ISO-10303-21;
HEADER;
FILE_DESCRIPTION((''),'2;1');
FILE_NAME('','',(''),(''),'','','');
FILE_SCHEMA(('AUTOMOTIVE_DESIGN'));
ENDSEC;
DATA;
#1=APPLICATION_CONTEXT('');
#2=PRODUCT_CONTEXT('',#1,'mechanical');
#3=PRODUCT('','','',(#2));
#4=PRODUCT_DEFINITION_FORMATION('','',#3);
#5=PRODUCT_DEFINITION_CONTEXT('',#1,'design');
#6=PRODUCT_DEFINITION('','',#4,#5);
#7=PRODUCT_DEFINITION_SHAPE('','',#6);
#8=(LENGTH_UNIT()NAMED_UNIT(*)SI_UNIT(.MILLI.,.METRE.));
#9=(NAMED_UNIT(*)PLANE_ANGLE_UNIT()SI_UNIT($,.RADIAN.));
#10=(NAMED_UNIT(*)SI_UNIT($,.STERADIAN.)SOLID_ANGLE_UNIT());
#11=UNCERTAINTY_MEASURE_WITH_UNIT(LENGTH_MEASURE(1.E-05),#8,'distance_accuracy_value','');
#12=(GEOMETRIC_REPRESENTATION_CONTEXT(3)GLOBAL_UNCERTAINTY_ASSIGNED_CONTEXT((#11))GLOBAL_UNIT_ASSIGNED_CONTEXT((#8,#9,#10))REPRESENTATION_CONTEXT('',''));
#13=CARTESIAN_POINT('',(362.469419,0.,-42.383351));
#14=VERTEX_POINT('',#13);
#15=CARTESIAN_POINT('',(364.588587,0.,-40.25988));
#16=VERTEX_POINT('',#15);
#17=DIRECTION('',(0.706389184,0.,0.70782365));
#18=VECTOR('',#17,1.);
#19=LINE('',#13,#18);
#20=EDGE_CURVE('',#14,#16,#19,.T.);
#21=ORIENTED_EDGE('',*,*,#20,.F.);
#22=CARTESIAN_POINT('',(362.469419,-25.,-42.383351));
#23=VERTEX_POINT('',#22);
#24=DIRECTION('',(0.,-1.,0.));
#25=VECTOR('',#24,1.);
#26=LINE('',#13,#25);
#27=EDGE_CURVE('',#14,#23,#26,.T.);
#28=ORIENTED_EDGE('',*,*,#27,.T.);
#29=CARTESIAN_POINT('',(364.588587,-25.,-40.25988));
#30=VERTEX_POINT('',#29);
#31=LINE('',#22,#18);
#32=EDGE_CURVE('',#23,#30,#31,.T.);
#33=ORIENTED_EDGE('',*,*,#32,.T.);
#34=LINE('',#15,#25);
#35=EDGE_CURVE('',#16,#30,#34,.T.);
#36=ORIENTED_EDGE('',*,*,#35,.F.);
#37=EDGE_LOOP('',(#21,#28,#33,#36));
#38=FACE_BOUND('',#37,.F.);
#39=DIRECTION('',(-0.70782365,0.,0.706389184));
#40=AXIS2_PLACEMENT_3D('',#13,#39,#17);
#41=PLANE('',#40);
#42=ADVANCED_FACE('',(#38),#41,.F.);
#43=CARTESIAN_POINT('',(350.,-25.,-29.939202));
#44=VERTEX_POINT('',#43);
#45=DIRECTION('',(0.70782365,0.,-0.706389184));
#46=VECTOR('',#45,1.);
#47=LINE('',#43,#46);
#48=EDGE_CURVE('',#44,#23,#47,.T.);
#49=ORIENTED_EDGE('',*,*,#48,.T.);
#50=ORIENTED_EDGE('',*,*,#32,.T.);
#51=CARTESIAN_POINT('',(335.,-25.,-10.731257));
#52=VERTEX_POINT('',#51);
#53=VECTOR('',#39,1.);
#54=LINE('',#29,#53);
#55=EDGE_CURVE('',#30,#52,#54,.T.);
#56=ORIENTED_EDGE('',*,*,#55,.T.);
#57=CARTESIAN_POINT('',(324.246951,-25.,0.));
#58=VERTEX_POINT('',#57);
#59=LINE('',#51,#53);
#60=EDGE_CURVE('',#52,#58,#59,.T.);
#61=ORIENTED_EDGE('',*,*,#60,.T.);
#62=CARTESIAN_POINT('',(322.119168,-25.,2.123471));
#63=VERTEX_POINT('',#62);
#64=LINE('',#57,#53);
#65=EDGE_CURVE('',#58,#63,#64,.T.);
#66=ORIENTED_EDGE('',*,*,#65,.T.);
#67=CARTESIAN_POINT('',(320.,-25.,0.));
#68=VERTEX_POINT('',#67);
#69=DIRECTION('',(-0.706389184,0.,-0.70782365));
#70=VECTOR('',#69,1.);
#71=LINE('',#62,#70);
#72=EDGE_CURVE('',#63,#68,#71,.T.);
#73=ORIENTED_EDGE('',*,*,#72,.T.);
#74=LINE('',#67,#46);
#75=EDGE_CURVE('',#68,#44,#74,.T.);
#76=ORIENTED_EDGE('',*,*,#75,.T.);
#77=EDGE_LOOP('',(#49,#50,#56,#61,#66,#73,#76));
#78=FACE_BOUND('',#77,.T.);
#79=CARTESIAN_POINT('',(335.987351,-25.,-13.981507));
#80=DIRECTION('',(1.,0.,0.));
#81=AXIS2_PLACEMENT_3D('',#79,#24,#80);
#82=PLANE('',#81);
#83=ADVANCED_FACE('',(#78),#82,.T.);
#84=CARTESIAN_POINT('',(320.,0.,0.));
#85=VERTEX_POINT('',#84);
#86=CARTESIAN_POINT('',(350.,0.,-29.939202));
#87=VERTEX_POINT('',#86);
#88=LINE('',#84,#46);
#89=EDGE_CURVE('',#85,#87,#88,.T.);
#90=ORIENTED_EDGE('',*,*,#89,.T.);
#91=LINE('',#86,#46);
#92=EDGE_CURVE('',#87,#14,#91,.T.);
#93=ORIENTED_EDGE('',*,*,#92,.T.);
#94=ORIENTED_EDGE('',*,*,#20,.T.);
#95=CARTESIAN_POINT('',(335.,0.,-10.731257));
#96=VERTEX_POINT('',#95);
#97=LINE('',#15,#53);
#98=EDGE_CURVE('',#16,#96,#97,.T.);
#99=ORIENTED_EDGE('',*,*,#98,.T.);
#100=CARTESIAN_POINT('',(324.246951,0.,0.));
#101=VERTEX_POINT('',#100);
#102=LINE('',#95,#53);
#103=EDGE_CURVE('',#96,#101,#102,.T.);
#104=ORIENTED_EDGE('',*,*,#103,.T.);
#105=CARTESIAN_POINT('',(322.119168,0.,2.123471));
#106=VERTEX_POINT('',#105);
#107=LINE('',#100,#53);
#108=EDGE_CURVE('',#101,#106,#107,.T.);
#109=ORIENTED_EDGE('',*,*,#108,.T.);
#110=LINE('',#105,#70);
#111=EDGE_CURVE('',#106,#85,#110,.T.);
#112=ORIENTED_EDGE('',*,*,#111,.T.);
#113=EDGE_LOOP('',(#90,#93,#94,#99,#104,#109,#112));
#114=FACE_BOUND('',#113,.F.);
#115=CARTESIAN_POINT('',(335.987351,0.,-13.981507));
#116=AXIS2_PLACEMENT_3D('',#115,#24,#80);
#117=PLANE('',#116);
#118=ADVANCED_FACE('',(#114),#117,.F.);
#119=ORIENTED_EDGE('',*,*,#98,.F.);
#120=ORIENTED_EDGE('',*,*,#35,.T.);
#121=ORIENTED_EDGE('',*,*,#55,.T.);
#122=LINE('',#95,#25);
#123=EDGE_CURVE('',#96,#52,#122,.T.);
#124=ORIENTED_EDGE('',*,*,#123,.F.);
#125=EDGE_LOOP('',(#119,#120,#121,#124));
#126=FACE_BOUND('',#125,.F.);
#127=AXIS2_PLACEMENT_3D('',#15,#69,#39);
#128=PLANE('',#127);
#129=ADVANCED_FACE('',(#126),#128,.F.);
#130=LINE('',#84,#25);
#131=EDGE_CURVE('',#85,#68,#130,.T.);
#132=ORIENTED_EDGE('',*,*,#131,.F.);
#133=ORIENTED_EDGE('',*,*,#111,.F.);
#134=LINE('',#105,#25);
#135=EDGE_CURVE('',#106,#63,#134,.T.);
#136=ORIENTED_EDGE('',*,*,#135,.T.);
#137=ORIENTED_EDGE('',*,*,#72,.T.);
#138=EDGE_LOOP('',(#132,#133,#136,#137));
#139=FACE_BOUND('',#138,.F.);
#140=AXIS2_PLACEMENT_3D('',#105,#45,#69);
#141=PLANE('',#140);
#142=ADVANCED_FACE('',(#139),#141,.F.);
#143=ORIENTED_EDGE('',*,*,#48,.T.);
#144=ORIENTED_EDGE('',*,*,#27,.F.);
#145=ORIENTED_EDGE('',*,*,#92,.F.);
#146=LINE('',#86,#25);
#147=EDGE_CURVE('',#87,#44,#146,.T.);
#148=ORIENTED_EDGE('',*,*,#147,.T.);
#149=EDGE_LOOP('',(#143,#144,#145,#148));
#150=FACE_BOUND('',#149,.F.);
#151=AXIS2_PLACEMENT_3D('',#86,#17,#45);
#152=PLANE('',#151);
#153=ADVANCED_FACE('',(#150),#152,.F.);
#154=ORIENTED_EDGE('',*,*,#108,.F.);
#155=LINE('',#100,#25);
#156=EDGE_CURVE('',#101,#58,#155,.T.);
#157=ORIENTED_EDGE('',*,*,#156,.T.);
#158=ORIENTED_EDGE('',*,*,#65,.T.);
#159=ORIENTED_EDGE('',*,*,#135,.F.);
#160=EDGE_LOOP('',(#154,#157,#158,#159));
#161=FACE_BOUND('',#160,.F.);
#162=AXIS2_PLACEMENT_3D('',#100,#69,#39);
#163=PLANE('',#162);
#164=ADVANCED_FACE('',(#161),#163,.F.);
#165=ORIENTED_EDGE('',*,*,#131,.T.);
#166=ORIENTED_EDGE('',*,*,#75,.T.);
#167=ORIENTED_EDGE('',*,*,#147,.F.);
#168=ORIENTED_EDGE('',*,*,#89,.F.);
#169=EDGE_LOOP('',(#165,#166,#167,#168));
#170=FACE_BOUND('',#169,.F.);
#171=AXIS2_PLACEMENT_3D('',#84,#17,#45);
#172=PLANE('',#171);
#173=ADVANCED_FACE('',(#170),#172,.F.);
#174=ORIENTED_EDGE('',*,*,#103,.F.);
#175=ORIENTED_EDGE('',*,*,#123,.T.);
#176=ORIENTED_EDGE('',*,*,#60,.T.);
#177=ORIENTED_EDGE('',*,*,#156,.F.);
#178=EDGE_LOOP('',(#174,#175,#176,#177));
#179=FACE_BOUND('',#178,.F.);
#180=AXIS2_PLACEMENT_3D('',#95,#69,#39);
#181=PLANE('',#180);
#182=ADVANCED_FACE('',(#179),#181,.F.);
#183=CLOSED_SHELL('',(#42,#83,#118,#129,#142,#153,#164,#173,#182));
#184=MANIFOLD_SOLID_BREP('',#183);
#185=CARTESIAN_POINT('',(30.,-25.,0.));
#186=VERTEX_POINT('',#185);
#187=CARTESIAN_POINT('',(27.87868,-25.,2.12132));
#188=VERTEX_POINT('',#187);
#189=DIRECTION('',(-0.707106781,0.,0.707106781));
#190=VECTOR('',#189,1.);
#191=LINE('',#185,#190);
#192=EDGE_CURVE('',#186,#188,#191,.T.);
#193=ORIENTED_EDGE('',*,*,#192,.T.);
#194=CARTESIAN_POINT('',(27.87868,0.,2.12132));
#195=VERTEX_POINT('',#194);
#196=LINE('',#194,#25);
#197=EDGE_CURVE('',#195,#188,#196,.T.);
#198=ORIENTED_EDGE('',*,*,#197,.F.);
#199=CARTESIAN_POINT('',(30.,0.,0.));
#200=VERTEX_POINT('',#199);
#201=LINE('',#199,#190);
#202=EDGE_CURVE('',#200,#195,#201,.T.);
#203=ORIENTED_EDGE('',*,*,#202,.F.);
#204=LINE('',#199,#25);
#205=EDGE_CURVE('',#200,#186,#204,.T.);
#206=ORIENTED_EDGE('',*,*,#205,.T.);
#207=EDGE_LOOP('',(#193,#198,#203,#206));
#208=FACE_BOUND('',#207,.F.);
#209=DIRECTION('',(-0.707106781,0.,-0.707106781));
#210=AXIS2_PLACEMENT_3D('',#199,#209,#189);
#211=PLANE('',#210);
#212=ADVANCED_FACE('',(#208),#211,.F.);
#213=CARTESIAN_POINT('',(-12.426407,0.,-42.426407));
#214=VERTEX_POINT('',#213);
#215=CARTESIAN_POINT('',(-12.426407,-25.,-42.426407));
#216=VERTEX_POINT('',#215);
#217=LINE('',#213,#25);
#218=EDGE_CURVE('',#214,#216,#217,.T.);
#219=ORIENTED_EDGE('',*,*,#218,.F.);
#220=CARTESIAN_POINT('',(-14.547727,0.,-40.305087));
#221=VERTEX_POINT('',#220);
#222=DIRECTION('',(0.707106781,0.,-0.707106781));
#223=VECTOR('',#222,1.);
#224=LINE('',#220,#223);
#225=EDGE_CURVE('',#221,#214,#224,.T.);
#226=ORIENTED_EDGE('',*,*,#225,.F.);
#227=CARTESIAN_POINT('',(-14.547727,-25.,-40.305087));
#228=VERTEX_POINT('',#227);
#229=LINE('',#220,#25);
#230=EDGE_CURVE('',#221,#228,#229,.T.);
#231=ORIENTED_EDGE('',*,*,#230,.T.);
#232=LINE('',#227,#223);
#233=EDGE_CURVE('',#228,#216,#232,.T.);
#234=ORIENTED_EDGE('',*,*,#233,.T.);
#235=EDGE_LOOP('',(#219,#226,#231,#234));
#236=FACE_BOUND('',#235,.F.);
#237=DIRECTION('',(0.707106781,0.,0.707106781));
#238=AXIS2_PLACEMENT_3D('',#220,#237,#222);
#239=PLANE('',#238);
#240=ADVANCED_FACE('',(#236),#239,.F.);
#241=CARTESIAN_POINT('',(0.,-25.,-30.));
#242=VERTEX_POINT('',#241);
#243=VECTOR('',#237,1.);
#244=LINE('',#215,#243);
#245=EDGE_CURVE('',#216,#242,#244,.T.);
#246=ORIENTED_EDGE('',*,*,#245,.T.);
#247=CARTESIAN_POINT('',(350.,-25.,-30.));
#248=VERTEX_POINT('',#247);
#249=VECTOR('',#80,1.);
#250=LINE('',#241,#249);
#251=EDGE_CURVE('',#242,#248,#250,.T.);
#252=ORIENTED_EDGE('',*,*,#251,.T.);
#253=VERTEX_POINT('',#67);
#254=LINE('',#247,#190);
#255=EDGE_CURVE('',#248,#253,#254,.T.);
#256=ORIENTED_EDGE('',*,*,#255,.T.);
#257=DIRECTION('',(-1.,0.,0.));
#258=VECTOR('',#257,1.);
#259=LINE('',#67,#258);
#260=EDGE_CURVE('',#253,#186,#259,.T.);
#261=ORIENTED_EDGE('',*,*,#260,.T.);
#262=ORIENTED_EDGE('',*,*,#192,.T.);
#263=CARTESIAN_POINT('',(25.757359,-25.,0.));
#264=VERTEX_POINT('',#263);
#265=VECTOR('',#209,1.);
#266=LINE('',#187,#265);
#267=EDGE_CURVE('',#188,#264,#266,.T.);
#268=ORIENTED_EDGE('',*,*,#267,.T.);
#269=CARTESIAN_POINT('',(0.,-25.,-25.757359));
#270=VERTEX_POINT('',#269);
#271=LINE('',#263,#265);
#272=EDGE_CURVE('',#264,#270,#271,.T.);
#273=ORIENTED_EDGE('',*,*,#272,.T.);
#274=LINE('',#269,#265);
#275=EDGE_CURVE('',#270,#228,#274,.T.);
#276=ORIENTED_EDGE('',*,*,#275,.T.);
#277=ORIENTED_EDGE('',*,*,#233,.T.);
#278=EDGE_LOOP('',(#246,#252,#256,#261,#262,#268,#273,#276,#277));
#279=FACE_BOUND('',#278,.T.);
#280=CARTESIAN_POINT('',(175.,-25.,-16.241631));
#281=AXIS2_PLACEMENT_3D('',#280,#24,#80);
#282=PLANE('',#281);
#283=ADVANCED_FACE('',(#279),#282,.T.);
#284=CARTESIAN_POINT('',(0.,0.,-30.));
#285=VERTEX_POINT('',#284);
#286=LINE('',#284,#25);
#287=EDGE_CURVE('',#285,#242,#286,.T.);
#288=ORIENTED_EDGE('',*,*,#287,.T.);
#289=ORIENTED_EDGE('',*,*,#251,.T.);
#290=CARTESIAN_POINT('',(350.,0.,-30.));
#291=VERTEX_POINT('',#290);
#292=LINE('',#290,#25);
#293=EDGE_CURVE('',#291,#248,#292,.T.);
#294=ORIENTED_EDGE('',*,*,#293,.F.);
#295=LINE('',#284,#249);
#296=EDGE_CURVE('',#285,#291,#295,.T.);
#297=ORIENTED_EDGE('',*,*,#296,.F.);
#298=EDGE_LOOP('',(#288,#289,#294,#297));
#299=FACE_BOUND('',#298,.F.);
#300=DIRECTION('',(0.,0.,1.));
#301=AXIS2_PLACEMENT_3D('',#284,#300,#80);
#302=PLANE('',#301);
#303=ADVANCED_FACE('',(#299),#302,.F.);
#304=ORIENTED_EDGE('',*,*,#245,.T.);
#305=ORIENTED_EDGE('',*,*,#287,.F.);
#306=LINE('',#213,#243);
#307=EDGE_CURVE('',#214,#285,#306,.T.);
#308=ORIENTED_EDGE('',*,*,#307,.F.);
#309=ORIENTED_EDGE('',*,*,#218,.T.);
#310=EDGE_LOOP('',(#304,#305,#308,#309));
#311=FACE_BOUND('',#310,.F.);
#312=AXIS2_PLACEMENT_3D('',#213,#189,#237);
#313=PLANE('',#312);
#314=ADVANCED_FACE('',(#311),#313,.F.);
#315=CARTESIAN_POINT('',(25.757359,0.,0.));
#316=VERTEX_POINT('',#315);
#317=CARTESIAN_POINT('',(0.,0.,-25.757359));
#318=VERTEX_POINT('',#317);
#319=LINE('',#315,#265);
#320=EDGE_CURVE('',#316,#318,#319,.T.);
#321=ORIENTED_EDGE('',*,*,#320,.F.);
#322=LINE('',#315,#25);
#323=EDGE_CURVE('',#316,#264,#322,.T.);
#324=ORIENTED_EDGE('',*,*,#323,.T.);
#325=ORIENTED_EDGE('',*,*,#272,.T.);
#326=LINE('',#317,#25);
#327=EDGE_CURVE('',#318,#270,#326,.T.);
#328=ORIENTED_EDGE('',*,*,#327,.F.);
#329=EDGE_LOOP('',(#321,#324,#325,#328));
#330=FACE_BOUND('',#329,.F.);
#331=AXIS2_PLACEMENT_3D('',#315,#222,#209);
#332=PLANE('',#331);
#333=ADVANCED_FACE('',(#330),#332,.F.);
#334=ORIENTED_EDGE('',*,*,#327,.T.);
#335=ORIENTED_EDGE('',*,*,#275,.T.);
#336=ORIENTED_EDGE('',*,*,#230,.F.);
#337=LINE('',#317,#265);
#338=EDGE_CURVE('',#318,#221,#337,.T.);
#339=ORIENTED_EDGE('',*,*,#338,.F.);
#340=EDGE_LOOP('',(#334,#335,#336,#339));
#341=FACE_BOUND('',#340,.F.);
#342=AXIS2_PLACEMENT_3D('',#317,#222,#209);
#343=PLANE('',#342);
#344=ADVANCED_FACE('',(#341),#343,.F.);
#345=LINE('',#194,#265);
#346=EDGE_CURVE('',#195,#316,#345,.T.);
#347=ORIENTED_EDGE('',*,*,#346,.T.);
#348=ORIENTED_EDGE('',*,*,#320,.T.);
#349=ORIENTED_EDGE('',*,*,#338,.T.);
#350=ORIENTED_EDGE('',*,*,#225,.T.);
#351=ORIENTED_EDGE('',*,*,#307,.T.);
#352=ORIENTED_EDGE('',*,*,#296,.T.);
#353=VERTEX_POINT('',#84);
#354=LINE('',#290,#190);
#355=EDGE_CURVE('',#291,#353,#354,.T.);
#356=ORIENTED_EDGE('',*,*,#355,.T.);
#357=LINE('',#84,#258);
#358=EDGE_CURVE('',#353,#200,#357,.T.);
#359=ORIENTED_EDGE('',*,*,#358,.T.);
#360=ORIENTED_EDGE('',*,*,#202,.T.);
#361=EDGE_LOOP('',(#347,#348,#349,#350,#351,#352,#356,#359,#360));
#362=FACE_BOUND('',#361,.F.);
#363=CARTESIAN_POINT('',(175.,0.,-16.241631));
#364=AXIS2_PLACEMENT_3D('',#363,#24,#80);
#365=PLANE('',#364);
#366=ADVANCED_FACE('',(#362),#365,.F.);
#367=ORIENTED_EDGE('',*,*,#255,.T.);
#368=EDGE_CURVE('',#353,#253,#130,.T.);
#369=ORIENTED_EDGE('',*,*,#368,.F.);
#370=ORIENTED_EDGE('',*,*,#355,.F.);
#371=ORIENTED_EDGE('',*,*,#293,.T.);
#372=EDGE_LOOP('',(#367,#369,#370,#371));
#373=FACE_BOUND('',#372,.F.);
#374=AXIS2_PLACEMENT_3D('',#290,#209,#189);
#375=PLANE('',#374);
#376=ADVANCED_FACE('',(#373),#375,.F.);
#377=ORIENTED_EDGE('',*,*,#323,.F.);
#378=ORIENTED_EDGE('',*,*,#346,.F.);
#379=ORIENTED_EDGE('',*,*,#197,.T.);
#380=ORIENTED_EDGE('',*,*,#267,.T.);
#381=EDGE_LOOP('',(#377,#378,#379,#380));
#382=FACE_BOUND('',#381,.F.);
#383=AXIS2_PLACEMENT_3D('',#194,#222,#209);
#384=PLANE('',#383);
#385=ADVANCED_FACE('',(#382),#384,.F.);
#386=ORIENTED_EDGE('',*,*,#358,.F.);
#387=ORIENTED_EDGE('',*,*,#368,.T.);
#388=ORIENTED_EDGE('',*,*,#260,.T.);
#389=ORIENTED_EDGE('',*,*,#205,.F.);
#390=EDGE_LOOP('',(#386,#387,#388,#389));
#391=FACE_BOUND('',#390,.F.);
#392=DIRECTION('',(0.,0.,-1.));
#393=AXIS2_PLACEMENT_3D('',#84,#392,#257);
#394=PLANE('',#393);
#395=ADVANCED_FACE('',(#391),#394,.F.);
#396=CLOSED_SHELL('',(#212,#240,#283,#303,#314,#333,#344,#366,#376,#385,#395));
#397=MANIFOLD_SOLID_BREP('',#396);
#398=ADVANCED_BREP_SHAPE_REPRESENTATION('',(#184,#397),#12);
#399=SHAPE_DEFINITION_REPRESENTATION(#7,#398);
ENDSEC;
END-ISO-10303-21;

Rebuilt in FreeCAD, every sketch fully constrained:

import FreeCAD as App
import Part
import Sketcher

V = App.Vector

doc = App.newDocument("Part")
body = doc.addObject("PartDesign::Body", "Body")

sketch1 = doc.addObject("Sketcher::SketchObject", "Sketch")
body.addObject(sketch1)
sketch1.AttachmentSupport = (doc.XZ_Plane, [""])
sketch1.MapMode = "FlatFace"
sketch1.addGeometry([
    Part.LineSegment(V(320, 0, 0), V(30, 0, 0)),
    Part.LineSegment(V(30, 0, 0), V(27.9, 2.1, 0)),
    Part.LineSegment(V(27.9, 2.1, 0), V(25.8, 0, 0)),
    Part.LineSegment(V(25.8, 0, 0), V(0, -25.8, 0)),
    Part.LineSegment(V(0, -25.8, 0), V(-14.5, -40.3, 0)),
    Part.LineSegment(V(-14.5, -40.3, 0), V(-12.4, -42.4, 0)),
    Part.LineSegment(V(-12.4, -42.4, 0), V(0, -30, 0)),
    Part.LineSegment(V(0, -30, 0), V(350, -30, 0)),
    Part.LineSegment(V(350, -30, 0), V(320, 0, 0)),
], False)
sketch1.addConstraint([
    Sketcher.Constraint("Coincident", 0, 2, 1, 1),
    Sketcher.Constraint("Coincident", 1, 2, 2, 1),
    Sketcher.Constraint("Coincident", 2, 2, 3, 1),
    Sketcher.Constraint("Coincident", 3, 2, 4, 1),
    Sketcher.Constraint("Coincident", 4, 2, 5, 1),
    Sketcher.Constraint("Coincident", 5, 2, 6, 1),
    Sketcher.Constraint("Coincident", 6, 2, 7, 1),
    Sketcher.Constraint("Coincident", 7, 2, 8, 1),
    Sketcher.Constraint("Coincident", 8, 2, 0, 1),
    Sketcher.Constraint("Horizontal", 0),
    Sketcher.Constraint("Horizontal", 7),
    Sketcher.Constraint("PointOnObject", 0, 2, -1),
    Sketcher.Constraint("PointOnObject", 2, 2, -1),
    Sketcher.Constraint("PointOnObject", 3, 2, -2),
    Sketcher.Constraint("PointOnObject", 6, 2, -2),
    Sketcher.Constraint("Perpendicular", 1, 2),
    Sketcher.Constraint("Parallel", 2, 3),
    Sketcher.Constraint("Parallel", 3, 4),
    Sketcher.Constraint("Perpendicular", 4, 5),
    Sketcher.Constraint("Perpendicular", 5, 6),
    Sketcher.Constraint("Perpendicular", 6, 8),
    Sketcher.Constraint("Equal", 1, 2),
    Sketcher.Constraint("Equal", 2, 5),
    Sketcher.Constraint("DistanceX", 0, 2, 0, 1, 290.0),
    Sketcher.Constraint("DistanceX", 7, 1, 7, 2, 350.0),
    Sketcher.Constraint("Distance", 1, 3.0),
    Sketcher.Constraint("Distance", 4, 20.573593),
])
pad1 = doc.addObject("PartDesign::Pad", "Pad")
body.addObject(pad1)
pad1.Profile = sketch1
pad1.Length = 25
body2 = doc.addObject("PartDesign::Body", "Body001")

sketch2 = doc.addObject("Sketcher::SketchObject", "Sketch001")
body2.addObject(sketch2)
sketch2.AttachmentSupport = (doc.getObject("XZ_Plane001"), [""])
sketch2.MapMode = "FlatFace"
sketch2.addGeometry([
    Part.LineSegment(V(320, 0, 0), V(350, -29.9, 0)),
    Part.LineSegment(V(350, -29.9, 0), V(362.5, -42.4, 0)),
    Part.LineSegment(V(362.5, -42.4, 0), V(364.6, -40.3, 0)),
    Part.LineSegment(V(364.6, -40.3, 0), V(335, -10.7, 0)),
    Part.LineSegment(V(335, -10.7, 0), V(324.2, 0, 0)),
    Part.LineSegment(V(324.2, 0, 0), V(322.1, 2.1, 0)),
    Part.LineSegment(V(322.1, 2.1, 0), V(320, 0, 0)),
], False)
sketch2.addConstraint([
    Sketcher.Constraint("Coincident", 0, 2, 1, 1),
    Sketcher.Constraint("Coincident", 1, 2, 2, 1),
    Sketcher.Constraint("Coincident", 2, 2, 3, 1),
    Sketcher.Constraint("Coincident", 3, 2, 4, 1),
    Sketcher.Constraint("Coincident", 4, 2, 5, 1),
    Sketcher.Constraint("Coincident", 5, 2, 6, 1),
    Sketcher.Constraint("Coincident", 6, 2, 0, 1),
    Sketcher.Constraint("PointOnObject", 4, 2, -1),
    Sketcher.Constraint("PointOnObject", 6, 2, -1),
    Sketcher.Constraint("Parallel", 0, 1),
    Sketcher.Constraint("Perpendicular", 1, 2),
    Sketcher.Constraint("Perpendicular", 2, 3),
    Sketcher.Constraint("Parallel", 3, 4),
    Sketcher.Constraint("Parallel", 4, 5),
    Sketcher.Constraint("Perpendicular", 5, 6),
    Sketcher.Constraint("Distance", 2, 3.0),
    Sketcher.Constraint("DistanceX", -1, 1, 0, 2, 350.0),
    Sketcher.Constraint("DistanceX", -1, 1, 3, 2, 335.0),
    Sketcher.Constraint("DistanceX", -1, 1, 6, 2, 320.0),
    Sketcher.Constraint("Distance", 3, 41.802201),
    Sketcher.Constraint("Distance", 0, 42.383438),
])
pad2 = doc.addObject("PartDesign::Pad", "Pad001")
body2.addObject(pad2)
pad2.Profile = sketch2
pad2.Length = 25

doc.recompute()
